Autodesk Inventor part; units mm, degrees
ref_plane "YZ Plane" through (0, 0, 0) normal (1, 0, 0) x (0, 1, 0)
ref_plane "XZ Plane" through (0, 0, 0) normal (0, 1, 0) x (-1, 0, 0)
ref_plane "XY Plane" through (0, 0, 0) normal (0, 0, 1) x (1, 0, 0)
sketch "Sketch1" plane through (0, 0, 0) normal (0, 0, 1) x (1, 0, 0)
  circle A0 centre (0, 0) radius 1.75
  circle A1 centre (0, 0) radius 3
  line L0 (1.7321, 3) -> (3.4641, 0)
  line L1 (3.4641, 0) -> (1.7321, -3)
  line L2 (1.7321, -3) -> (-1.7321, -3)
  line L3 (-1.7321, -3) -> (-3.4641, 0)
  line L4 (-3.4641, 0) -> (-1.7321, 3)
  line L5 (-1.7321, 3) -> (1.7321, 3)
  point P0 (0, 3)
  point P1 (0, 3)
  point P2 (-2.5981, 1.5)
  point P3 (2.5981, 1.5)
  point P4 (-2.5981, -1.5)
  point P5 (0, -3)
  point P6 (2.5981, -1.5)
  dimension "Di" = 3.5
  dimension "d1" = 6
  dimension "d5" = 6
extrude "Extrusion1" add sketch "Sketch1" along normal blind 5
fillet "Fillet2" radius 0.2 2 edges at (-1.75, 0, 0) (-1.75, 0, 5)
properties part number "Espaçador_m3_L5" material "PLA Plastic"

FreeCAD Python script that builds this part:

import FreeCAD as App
import Part
import Sketcher
Q = App.Units.Quantity


def edges_at(feature, points):
    """Names of the edges that pass closest to the given points."""
    edges = feature.Shape.Edges
    near = lambda p: min(range(len(edges)), key=lambda i: edges[i].distToShape(Part.Vertex(*p))[0])
    return sorted({f"Edge{near(p) + 1}" for p in points})

doc = App.newDocument("Part")
body = doc.addObject("PartDesign::Body", "Body")

sketch1 = doc.addObject("Sketcher::SketchObject", "Sketch")
body.addObject(sketch1)
sketch1.AttachmentSupport = (doc.XY_Plane, [""])
sketch1.MapMode = "FlatFace"
sketch1.addGeometry([
    Part.LineSegment(App.Vector(3.4641, 0, 0), App.Vector(1.7321, 3, 0)),
    Part.LineSegment(App.Vector(1.7321, 3, 0), App.Vector(-1.7321, 3, 0)),
    Part.LineSegment(App.Vector(-1.7321, 3, 0), App.Vector(-3.4641, 0, 0)),
    Part.LineSegment(App.Vector(-3.4641, 0, 0), App.Vector(-1.7321, -3, 0)),
    Part.LineSegment(App.Vector(-1.7321, -3, 0), App.Vector(1.7321, -3, 0)),
    Part.LineSegment(App.Vector(1.7321, -3, 0), App.Vector(3.4641, 0, 0)),
    Part.Circle(App.Vector(0, 0, 0), App.Vector(0, 0, 1), 1.75),
], False)
sketch1.addConstraint([
    Sketcher.Constraint("Coincident", 0, 2, 1, 1),
    Sketcher.Constraint("Coincident", 1, 2, 2, 1),
    Sketcher.Constraint("Coincident", 2, 2, 3, 1),
    Sketcher.Constraint("Coincident", 3, 2, 4, 1),
    Sketcher.Constraint("Coincident", 4, 2, 5, 1),
    Sketcher.Constraint("Coincident", 5, 2, 0, 1),
    Sketcher.Constraint("Horizontal", 1),
    Sketcher.Constraint("Horizontal", 4),
    Sketcher.Constraint("Coincident", 6, 3, -1, 1),
    Sketcher.Constraint("Symmetric", 0, 2, 3, 2, -1, 1),
    Sketcher.Constraint("Symmetric", 2, 2, 5, 2, -1, 1),
    Sketcher.Constraint("PointOnObject", 2, 2, -1),
    Sketcher.Constraint("Parallel", 2, 5),
    Sketcher.Constraint("Vertical", 1, 2, 3, 2),
    Sketcher.Constraint("Diameter", 6, 3.5),
    Sketcher.Constraint("DistanceY", 3, 2, 1, 2, 6.0),
    Sketcher.Constraint("Angle", 0, Q("119.9993 deg")),
    Sketcher.Constraint("DistanceX", 1, 2, 1, 1, 3.4642),
])
pad1 = doc.addObject("PartDesign::Pad", "Pad")
body.addObject(pad1)
pad1.Profile = sketch1
pad1.Length = 5
doc.recompute()

fillet = doc.addObject("PartDesign::Fillet", "Fillet")
body.addObject(fillet)
fillet.Base = (pad1, edges_at(pad1, [(-1.75, 0, 0), (-1.75, 0, 5)]))
fillet.Radius = 0.2

doc.recompute()
